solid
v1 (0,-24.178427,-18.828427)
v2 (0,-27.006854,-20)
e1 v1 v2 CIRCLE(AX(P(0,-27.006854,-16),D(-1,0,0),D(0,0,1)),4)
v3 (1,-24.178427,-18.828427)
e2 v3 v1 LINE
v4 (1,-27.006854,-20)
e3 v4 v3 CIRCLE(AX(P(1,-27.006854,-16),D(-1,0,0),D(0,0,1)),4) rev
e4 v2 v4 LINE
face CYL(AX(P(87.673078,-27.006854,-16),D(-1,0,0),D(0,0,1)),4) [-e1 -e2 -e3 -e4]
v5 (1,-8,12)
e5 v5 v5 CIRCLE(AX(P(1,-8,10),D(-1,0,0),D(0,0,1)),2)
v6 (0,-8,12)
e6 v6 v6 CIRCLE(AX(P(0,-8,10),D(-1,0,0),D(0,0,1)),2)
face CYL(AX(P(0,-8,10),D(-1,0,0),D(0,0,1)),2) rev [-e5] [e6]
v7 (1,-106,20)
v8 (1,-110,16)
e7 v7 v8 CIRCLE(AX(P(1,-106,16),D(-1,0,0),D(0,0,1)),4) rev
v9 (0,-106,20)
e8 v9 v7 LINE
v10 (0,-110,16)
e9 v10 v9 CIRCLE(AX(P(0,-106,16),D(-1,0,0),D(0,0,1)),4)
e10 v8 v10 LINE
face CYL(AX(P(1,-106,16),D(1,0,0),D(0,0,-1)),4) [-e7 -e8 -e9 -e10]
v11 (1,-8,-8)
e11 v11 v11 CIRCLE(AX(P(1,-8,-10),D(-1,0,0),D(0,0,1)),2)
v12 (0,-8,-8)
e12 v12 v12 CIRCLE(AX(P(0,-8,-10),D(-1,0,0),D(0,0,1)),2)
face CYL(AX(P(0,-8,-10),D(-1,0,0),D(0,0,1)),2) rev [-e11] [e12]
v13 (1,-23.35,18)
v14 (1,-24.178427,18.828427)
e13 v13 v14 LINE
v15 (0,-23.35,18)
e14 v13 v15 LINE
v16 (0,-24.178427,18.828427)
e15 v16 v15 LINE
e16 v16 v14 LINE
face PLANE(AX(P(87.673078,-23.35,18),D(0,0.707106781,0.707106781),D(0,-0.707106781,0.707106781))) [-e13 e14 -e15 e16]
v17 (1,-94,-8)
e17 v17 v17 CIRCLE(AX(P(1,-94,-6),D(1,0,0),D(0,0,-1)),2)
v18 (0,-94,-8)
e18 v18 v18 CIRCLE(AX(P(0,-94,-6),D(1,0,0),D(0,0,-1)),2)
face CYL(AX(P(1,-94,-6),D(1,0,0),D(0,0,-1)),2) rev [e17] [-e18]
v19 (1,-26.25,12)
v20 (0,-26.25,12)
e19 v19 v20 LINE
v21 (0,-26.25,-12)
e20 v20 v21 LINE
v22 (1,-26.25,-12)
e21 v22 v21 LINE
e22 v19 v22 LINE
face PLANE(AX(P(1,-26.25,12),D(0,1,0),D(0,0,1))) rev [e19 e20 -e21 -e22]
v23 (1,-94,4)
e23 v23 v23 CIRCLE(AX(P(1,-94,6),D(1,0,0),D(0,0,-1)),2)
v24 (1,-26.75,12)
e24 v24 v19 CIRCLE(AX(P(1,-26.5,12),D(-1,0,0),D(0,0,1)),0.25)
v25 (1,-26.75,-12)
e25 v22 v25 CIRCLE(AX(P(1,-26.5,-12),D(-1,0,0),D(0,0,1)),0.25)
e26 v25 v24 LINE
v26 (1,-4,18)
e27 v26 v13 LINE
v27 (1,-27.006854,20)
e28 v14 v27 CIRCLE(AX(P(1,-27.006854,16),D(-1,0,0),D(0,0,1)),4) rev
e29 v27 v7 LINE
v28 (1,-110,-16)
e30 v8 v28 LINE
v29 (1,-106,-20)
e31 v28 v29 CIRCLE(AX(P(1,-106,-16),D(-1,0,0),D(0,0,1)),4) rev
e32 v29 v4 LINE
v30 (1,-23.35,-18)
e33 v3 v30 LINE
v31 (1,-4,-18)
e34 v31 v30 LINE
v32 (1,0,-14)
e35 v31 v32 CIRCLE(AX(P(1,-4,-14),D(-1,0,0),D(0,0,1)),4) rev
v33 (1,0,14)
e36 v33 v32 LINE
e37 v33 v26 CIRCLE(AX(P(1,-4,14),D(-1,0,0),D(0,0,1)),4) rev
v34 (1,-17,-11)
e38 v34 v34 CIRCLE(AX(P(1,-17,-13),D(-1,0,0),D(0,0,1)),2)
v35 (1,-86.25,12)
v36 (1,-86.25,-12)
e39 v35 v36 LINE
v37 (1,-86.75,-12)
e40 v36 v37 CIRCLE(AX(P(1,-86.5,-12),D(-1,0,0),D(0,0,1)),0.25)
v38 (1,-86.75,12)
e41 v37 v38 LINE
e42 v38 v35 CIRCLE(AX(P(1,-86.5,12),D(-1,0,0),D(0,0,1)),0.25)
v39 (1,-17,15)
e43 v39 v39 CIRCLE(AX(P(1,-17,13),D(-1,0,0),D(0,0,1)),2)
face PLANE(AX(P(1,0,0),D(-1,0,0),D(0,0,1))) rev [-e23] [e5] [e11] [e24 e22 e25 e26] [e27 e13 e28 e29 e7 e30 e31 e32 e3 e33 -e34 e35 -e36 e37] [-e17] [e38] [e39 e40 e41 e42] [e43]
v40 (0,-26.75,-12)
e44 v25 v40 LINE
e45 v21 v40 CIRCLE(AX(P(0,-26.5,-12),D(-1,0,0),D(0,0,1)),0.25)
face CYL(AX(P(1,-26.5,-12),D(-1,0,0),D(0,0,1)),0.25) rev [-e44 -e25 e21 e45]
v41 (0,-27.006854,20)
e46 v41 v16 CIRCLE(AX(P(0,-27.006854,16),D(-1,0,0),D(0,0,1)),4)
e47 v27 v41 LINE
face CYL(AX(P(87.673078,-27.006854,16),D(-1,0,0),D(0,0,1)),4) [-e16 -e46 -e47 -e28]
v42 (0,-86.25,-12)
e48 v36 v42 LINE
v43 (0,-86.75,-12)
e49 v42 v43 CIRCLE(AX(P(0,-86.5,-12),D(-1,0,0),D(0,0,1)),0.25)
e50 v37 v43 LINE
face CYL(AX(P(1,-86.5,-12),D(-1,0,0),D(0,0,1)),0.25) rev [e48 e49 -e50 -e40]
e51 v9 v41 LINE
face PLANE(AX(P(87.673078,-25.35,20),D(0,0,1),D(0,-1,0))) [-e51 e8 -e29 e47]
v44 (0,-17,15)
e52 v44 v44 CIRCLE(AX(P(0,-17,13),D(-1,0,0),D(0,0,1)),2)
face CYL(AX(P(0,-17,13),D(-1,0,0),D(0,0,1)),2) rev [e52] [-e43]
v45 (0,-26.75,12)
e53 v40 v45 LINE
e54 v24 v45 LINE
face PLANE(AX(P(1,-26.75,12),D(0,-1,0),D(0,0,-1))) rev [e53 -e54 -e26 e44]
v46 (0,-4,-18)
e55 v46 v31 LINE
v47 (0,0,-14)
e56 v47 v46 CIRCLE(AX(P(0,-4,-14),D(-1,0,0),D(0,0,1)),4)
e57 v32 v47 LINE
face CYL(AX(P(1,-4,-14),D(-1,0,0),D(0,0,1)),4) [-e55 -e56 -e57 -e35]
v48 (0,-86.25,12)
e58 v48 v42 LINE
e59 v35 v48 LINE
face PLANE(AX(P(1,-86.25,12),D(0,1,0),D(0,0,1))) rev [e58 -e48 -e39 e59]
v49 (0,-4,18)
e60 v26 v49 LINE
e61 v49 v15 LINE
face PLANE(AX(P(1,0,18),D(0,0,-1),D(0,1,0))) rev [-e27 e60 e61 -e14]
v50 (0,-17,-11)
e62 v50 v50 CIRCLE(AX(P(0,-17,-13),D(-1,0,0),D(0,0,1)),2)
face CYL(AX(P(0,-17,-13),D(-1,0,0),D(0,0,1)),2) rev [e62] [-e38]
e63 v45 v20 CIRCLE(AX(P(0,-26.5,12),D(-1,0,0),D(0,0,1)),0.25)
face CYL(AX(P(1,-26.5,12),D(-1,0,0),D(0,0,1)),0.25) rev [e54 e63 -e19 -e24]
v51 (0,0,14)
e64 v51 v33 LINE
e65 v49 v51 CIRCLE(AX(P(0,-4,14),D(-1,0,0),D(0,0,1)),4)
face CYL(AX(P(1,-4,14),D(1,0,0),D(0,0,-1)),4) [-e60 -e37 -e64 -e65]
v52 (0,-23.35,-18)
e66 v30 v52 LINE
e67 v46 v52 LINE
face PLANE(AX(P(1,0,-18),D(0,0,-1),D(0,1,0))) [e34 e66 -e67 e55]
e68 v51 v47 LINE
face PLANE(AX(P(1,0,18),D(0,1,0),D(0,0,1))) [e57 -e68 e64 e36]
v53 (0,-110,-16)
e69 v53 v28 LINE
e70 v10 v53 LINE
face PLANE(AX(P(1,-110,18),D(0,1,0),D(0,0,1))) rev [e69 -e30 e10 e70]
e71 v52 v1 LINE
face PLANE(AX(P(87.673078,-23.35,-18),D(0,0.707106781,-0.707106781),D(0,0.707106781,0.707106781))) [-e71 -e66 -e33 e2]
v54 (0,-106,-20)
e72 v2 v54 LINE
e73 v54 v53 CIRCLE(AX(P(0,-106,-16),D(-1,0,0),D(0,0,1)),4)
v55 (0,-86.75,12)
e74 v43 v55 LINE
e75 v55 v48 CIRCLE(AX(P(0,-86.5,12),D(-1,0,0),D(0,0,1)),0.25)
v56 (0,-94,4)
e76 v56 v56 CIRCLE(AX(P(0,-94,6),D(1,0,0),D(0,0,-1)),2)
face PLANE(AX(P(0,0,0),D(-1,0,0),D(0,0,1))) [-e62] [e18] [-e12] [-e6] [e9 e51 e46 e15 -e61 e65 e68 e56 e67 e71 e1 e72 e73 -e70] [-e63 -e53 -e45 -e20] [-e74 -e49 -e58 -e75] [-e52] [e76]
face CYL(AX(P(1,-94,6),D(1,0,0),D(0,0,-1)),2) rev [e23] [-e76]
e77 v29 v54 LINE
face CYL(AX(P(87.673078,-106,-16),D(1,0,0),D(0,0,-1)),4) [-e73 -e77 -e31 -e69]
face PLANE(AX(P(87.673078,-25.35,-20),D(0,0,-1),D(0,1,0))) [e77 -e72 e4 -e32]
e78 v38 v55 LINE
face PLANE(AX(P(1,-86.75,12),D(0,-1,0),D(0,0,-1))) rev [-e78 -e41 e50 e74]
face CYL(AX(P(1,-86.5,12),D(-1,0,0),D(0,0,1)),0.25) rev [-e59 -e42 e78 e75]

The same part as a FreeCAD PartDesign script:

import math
import FreeCAD as App
import Part
import Sketcher

V = App.Vector


def edges_at(feature, points):
    """Names of the edges that pass closest to the given points."""
    edges = feature.Shape.Edges
    near = lambda p: min(range(len(edges)), key=lambda i: edges[i].distToShape(Part.Vertex(*p))[0])
    return sorted({f"Edge{near(p) + 1}" for p in points})


def add_polygon(sketch, points):
    """Adds a closed chain of lines whose ends are joined by coincident constraints."""
    first, n = sketch.GeometryCount, len(points)
    for a, b in zip(points, points[1:] + points[:1]):
        sketch.addGeometry(Part.LineSegment(App.Vector(*a, 0), App.Vector(*b, 0)), False)
    for i in range(n):
        sketch.addConstraint(Sketcher.Constraint("Coincident", first + i, 2, first + (i + 1) % n, 1))

doc = App.newDocument("Part")
body = doc.addObject("PartDesign::Body", "Body")

# Sketch on YZ plane
sketch1 = body.newObject("Sketcher::SketchObject", "Sketch")
sketch1.AttachmentSupport = (doc.getObject("YZ_Plane"), [""])
sketch1.MapMode = "FlatFace"
add_polygon(sketch1, [(0, 18), (-110, 18), (-110, -18), (0, -18)])  # lines 0-3
sketch1.addConstraint(Sketcher.Constraint("Horizontal", 0))
sketch1.addConstraint(Sketcher.Constraint("Vertical", 1))
sketch1.addConstraint(Sketcher.Constraint("Horizontal", 2))
sketch1.addConstraint(Sketcher.Constraint("Vertical", 3))
sketch1.addConstraint(Sketcher.Constraint("Symmetric", 2, 2, 3, 2, -1, 1))
sketch1.addConstraint(Sketcher.Constraint("DistanceX", 0, 2, 0, 1, 110.0))
sketch1.addConstraint(Sketcher.Constraint("DistanceY", 1, 2, 1, 1, 36.0))
pad1 = body.newObject("PartDesign::Pad", "Pad")
pad1.Profile = sketch1
pad1.Length = 1

# Sketch on YZ plane
sketch2 = body.newObject("Sketcher::SketchObject", "Sketch001")
sketch2.AttachmentSupport = (doc.getObject("YZ_Plane"), [""])
sketch2.MapMode = "FlatFace"
sketch2.addGeometry(Part.Circle(V(-8, -10, 0), V(0, 0, 1), 2), False)
sketch2.addGeometry(Part.Circle(V(-8, 10, 0), V(0, 0, 1), 2), False)
sketch2.addConstraint(Sketcher.Constraint("Equal", 0, 1))
sketch2.addConstraint(Sketcher.Constraint("Symmetric", 0, 3, 1, 3, -1))
sketch2.addConstraint(Sketcher.Constraint("Diameter", 0, 4.0))
sketch2.addConstraint(Sketcher.Constraint("DistanceX", 0, 3, -1, 1, 8.0))
sketch2.addConstraint(Sketcher.Constraint("DistanceY", 0, 3, -1, 1, 10.0))
doc.recompute()
hole = body.newObject("PartDesign::Hole", "Hole")
hole.Profile = sketch2
hole.ThreadType = "None"
hole.Diameter = 4
hole.DepthType = "ThroughAll"
hole.Reversed = True

# Sketch on YZ plane
sketch3 = body.newObject("Sketcher::SketchObject", "Sketch002")
sketch3.AttachmentSupport = (doc.getObject("YZ_Plane"), [""])
sketch3.MapMode = "FlatFace"
sketch3.addGeometry(Part.Circle(V(-17, -13, 0), V(0, 0, 1), 2), False)
sketch3.addGeometry(Part.Circle(V(-17, 13, 0), V(0, 0, 1), 2), False)
sketch3.addConstraint(Sketcher.Constraint("Equal", 0, 1))
sketch3.addConstraint(Sketcher.Constraint("Symmetric", 0, 3, 1, 3, -1))
sketch3.addConstraint(Sketcher.Constraint("Diameter", 0, 4.0))
sketch3.addConstraint(Sketcher.Constraint("DistanceX", 0, 3, -1, 1, 17.0))
sketch3.addConstraint(Sketcher.Constraint("DistanceY", 0, 3, -1, 1, 13.0))
doc.recompute()
hole2 = body.newObject("PartDesign::Hole", "Hole001")
hole2.Profile = sketch3
hole2.ThreadType = "None"
hole2.Diameter = 4
hole2.DepthType = "ThroughAll"
hole2.Reversed = True

# Sketch on YZ plane
sketch4 = body.newObject("Sketcher::SketchObject", "Sketch003")
sketch4.AttachmentSupport = (doc.getObject("YZ_Plane"), [""])
sketch4.MapMode = "FlatFace"
sketch4.AttachmentOffset = App.Placement(V(0, 0, 1), App.Rotation())
sketch4.addGeometry(Part.Circle(V(-94, -6, 0), V(0, 0, 1), 2), False)
sketch4.addGeometry(Part.Circle(V(-94, 6, 0), V(0, 0, 1), 2), False)
sketch4.addConstraint(Sketcher.Constraint("Equal", 0, 1))
sketch4.addConstraint(Sketcher.Constraint("Symmetric", 0, 3, 1, 3, -1))
sketch4.addConstraint(Sketcher.Constraint("Diameter", 0, 4.0))
sketch4.addConstraint(Sketcher.Constraint("DistanceX", 0, 3, -1, 1, 94.0))
sketch4.addConstraint(Sketcher.Constraint("DistanceY", 0, 3, -1, 1, 6.0))
doc.recompute()
hole3 = body.newObject("PartDesign::Hole", "Hole002")
hole3.Profile = sketch4
hole3.ThreadType = "None"
hole3.Diameter = 4
hole3.DepthType = "ThroughAll"

# Sketch on YZ plane
sketch5 = body.newObject("Sketcher::SketchObject", "Sketch004")
sketch5.AttachmentSupport = (doc.getObject("YZ_Plane"), [""])
sketch5.MapMode = "FlatFace"
add_polygon(sketch5, [(-25.35, 20), (-23.35, 18), (-110, 18), (-110, 20)])  # lines 0-3
add_polygon(sketch5, [(-23.35, -18), (-25.35, -20), (-110, -20), (-110, -18)])  # lines 4-7
sketch5.addConstraint(Sketcher.Constraint("Horizontal", 1))
sketch5.addConstraint(Sketcher.Constraint("Vertical", 2))
sketch5.addConstraint(Sketcher.Constraint("Horizontal", 3))
sketch5.addConstraint(Sketcher.Constraint("Horizontal", 5))
sketch5.addConstraint(Sketcher.Constraint("Vertical", 6))
sketch5.addConstraint(Sketcher.Constraint("Horizontal", 7))
sketch5.addConstraint(Sketcher.Constraint("Symmetric", 3, 2, 4, 2, -1))
sketch5.addConstraint(Sketcher.Constraint("Symmetric", 1, 2, 6, 2, -1))
sketch5.addConstraint(Sketcher.Constraint("Perpendicular", 0, 4))
sketch5.addConstraint(Sketcher.Constraint("Vertical", 0, 2, 7, 2))
sketch5.addConstraint(Sketcher.Constraint("DistanceY", 2, 1, 2, 2, 2.0))
sketch5.addConstraint(Sketcher.Constraint("DistanceY", -1, 1, 0, 2, 18.0))
sketch5.addConstraint(Sketcher.Constraint("DistanceX", 1, 2, -1, 1, 110.0))
sketch5.addConstraint(Sketcher.Constraint("DistanceX", 1, 2, 1, 1, 86.65))
pad2 = body.newObject("PartDesign::Pad", "Pad001")
pad2.Profile = sketch5
pad2.Length = 1
doc.recompute()

fillet = body.newObject("PartDesign::Fillet", "Fillet")
fillet.Base = (pad2, edges_at(pad2, [(0.5, 0, 18), (0.5, 0, -18)]))
fillet.Radius = 4

# Sketch on YZ plane
sketch6 = body.newObject("Sketcher::SketchObject", "Sketch005")
sketch6.AttachmentSupport = (doc.getObject("YZ_Plane"), [""])
sketch6.MapMode = "FlatFace"
sketch6.addGeometry(Part.LineSegment(V(-86.75, -12, 0), V(-86.75, 12, 0)), False)
sketch6.addGeometry(Part.ArcOfCircle(Part.Circle(V(-86.5, 12, 0), V(0, 0, 1), 0.25), math.radians(0), math.radians(180)), False)
sketch6.addGeometry(Part.LineSegment(V(-86.25, 12, 0), V(-86.25, -12, 0)), False)
sketch6.addGeometry(Part.ArcOfCircle(Part.Circle(V(-86.5, -12, 0), V(0, 0, 1), 0.25), math.radians(180), math.radians(360)), False)
sketch6.addGeometry(Part.LineSegment(V(-26.75, -12, 0), V(-26.75, 12, 0)), False)
sketch6.addGeometry(Part.ArcOfCircle(Part.Circle(V(-26.5, 12, 0), V(0, 0, 1), 0.25), math.radians(0), math.radians(180)), False)
sketch6.addGeometry(Part.LineSegment(V(-26.25, 12, 0), V(-26.25, -12, 0)), False)
sketch6.addGeometry(Part.ArcOfCircle(Part.Circle(V(-26.5, -12, 0), V(0, 0, 1), 0.25), math.radians(180), math.radians(360)), False)
sketch6.addConstraint(Sketcher.Constraint("Tangent", 0, 2, 1, 2))
sketch6.addConstraint(Sketcher.Constraint("Tangent", 1, 1, 2, 1))
sketch6.addConstraint(Sketcher.Constraint("Tangent", 2, 2, 3, 2))
sketch6.addConstraint(Sketcher.Constraint("Tangent", 3, 1, 0, 1))
sketch6.addConstraint(Sketcher.Constraint("Tangent", 4, 2, 5, 2))
sketch6.addConstraint(Sketcher.Constraint("Tangent", 5, 1, 6, 1))
sketch6.addConstraint(Sketcher.Constraint("Tangent", 6, 2, 7, 2))
sketch6.addConstraint(Sketcher.Constraint("Tangent", 7, 1, 4, 1))
sketch6.addConstraint(Sketcher.Constraint("Vertical", 0))
sketch6.addConstraint(Sketcher.Constraint("Vertical", 2))
sketch6.addConstraint(Sketcher.Constraint("Vertical", 4))
sketch6.addConstraint(Sketcher.Constraint("Vertical", 6))
sketch6.addConstraint(Sketcher.Constraint("Equal", 3, 5))
sketch6.addConstraint(Sketcher.Constraint("Horizontal", 1, 3, 5, 3))
sketch6.addConstraint(Sketcher.Constraint("Horizontal", 3, 3, 7, 3))
sketch6.addConstraint(Sketcher.Constraint("DistanceY", 0, 1, 0, 2, 24.0))
sketch6.addConstraint(Sketcher.Constraint("Radius", 1, 0.25))
sketch6.addConstraint(Sketcher.Constraint("DistanceY", -1, 1, 1, 3, 12.0))
sketch6.addConstraint(Sketcher.Constraint("DistanceX", 1, 3, 5, 3, 60.0))
sketch6.addConstraint(Sketcher.Constraint("DistanceX", 1, 3, -1, 1, 86.5))
pocket1 = body.newObject("PartDesign::Pocket", "Pocket")
pocket1.Profile = sketch6
pocket1.Type = "ThroughAll"
pocket1.Reversed = True
doc.recompute()

fillet2 = body.newObject("PartDesign::Fillet", "Fillet001")
fillet2.Base = (pocket1, edges_at(pocket1, [
    (0.5, -25.35, 20),
    (0.5, -110, 20),
    (0.5, -110, -20),
    (0.5, -25.35, -20),
]))
fillet2.Radius = 4

doc.recompute()
